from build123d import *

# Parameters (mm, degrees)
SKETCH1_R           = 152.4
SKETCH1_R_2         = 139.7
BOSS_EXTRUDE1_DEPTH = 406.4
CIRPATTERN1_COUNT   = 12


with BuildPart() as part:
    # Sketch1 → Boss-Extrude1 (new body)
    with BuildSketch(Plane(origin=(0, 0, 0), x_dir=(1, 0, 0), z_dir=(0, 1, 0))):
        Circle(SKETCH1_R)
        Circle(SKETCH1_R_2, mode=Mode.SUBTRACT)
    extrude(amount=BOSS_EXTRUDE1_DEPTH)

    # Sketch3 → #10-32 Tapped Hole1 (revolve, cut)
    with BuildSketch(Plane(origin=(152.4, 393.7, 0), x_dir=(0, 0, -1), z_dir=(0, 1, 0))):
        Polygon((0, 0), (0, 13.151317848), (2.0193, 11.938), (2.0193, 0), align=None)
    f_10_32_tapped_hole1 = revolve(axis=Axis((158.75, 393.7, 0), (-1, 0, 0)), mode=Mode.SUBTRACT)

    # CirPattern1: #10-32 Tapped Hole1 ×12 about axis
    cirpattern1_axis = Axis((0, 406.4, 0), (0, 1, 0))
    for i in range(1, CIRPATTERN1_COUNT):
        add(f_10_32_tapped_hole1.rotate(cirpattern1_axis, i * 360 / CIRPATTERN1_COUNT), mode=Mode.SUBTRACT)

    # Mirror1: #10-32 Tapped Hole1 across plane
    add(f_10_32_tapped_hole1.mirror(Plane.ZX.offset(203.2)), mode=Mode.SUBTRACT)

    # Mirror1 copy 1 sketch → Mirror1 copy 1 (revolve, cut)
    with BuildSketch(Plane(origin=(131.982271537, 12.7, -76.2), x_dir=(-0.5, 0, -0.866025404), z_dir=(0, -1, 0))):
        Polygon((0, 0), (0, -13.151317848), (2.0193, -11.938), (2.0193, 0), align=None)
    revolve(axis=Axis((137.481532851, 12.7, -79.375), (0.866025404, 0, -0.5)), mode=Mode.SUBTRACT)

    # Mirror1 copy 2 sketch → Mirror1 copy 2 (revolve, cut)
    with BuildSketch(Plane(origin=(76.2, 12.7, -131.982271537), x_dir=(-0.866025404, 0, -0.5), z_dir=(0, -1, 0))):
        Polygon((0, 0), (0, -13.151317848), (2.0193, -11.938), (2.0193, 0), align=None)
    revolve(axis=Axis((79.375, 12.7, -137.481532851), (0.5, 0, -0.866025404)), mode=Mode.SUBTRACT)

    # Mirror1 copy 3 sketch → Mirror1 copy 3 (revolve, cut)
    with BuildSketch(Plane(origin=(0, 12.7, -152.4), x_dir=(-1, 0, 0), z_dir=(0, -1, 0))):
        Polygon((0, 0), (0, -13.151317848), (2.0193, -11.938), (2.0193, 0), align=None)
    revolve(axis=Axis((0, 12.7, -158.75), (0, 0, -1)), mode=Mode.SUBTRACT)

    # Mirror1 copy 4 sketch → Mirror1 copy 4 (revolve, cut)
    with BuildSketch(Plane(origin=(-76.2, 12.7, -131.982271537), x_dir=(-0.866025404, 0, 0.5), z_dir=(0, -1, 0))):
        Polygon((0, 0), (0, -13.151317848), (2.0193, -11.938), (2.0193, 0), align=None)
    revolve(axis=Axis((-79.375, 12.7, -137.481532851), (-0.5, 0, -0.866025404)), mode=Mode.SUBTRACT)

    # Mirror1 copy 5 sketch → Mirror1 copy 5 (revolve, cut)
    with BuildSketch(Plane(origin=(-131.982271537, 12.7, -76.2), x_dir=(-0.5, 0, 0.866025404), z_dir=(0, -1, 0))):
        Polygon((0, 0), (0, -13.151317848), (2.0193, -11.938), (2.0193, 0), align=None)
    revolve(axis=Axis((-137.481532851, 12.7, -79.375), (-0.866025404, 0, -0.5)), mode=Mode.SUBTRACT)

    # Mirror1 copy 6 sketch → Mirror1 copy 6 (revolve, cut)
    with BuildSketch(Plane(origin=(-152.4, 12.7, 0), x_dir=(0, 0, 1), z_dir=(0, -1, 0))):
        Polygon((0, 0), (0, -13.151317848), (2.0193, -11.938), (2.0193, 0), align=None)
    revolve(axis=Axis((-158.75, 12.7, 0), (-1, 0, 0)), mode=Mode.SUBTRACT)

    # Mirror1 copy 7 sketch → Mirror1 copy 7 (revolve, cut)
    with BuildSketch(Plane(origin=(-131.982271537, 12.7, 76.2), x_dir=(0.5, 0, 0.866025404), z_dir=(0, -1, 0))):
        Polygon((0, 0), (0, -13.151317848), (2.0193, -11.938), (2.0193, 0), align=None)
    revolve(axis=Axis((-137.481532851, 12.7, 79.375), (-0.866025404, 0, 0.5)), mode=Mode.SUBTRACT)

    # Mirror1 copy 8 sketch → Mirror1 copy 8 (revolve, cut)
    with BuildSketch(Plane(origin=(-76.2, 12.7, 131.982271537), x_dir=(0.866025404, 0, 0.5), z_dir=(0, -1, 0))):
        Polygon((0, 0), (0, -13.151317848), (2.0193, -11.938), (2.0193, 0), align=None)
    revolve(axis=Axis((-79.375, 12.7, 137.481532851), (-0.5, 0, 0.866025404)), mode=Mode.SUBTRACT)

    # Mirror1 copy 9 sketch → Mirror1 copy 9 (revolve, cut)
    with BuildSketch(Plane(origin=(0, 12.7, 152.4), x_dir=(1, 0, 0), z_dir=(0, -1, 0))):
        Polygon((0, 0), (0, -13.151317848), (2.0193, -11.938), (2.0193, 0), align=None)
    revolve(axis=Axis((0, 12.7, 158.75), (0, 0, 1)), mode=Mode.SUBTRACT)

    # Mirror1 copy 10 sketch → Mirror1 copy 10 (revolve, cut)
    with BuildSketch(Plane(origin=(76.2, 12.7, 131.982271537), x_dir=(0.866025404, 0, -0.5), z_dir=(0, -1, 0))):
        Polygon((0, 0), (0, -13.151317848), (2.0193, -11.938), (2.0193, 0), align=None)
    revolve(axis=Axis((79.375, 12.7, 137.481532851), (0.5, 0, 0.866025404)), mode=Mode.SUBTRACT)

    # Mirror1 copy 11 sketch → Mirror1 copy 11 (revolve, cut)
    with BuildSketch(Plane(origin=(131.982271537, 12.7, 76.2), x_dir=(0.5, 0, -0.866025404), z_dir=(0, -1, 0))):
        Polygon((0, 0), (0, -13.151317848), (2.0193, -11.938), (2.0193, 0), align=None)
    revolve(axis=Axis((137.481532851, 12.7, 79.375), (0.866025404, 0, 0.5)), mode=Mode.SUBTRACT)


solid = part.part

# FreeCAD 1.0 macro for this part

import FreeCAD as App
import Part
import Sketcher

V = App.Vector
Q = App.Units.Quantity


def add_polygon(sketch, points):
    """Adds a closed chain of lines whose ends are joined by coincident constraints."""
    first, n = sketch.GeometryCount, len(points)
    for a, b in zip(points, points[1:] + points[:1]):
        sketch.addGeometry(Part.LineSegment(App.Vector(*a, 0), App.Vector(*b, 0)), False)
    for i in range(n):
        sketch.addConstraint(Sketcher.Constraint("Coincident", first + i, 2, first + (i + 1) % n, 1))

doc = App.newDocument("Part")
body = doc.addObject("PartDesign::Body", "Body")

sketch1 = body.newObject("Sketcher::SketchObject", "Sketch")
sketch1.AttachmentSupport = (doc.getObject("XZ_Plane"), [""])
sketch1.MapMode = "FlatFace"
sketch1.addGeometry(Part.Circle(V(0, 0, 0), V(0, 0, 1), 152), False)
sketch1.addGeometry(Part.Circle(V(0, 0, 0), V(0, 0, 1), 140), False)
sketch1.addConstraint(Sketcher.Constraint("Coincident", 0, 3, -1, 1))
sketch1.addConstraint(Sketcher.Constraint("Coincident", 1, 3, -1, 1))
sketch1.addConstraint(Sketcher.Constraint("Diameter", 0, Q("12 in")))
sketch1.addConstraint(Sketcher.Constraint("Diameter", 1, Q("11 in")))
pad1 = body.newObject("PartDesign::Pad", "Pad")
pad1.Profile = sketch1
pad1.Length = Q("16 in")
pad1.Reversed = True

sketch2 = body.newObject("Sketcher::SketchObject", "Sketch001")
sketch2.AttachmentSupport = (doc.getObject("XZ_Plane"), [""])
sketch2.MapMode = "FlatFace"
sketch2.AttachmentOffset = App.Placement(V(0, 0, -15.5 * 25.4), App.Rotation())
add_polygon(sketch2, [(139.2, 0), (152.4, 0), (152.4, -2), (140.5, -2)])
sketch2.addConstraint(Sketcher.Constraint("Horizontal", 0))
sketch2.addConstraint(Sketcher.Constraint("Vertical", 1))
sketch2.addConstraint(Sketcher.Constraint("Horizontal", 2))
sketch2.addConstraint(Sketcher.Constraint("PointOnObject", 0, 2, -1))
sketch2.addConstraint(Sketcher.Constraint("DistanceX", -1, 1, 0, 2, Q("6 in")))
sketch2.addConstraint(Sketcher.Constraint("Angle", 3, Q("121 deg")))
sketch2.addConstraint(Sketcher.Constraint("DistanceX", 2, 2, 2, 1, Q("0.47 in")))
sketch2.addConstraint(Sketcher.Constraint("DistanceY", 1, 2, 1, 1, Q("0.0795 in")))
groove = body.newObject("PartDesign::Groove", "Groove")
groove.Profile = sketch2
groove.ReferenceAxis = (sketch2, ["H_Axis"])
groove.Angle = 360
doc.recompute()

polarpattern = body.newObject("PartDesign::PolarPattern", "PolarPattern")
polarpattern.Originals = [groove]
polarpattern.Axis = (doc.getObject("Y_Axis"), [""])
polarpattern.Angle = 360
polarpattern.Occurrences = 12
body.Tip = polarpattern
doc.recompute()

datumplane = body.newObject("PartDesign::Plane", "DatumPlane")
datumplane.AttachmentSupport = (doc.getObject("XZ_Plane"), [""])
datumplane.MapMode = "FlatFace"
datumplane.AttachmentOffset = App.Placement(V(0, 0, -8 * 25.4), App.Rotation())
mirrored = body.newObject("PartDesign::Mirrored", "Mirrored")
mirrored.Originals = [groove]
mirrored.MirrorPlane = (datumplane, [""])
body.Tip = mirrored

sketch3 = body.newObject("Sketcher::SketchObject", "Sketch002")
sketch3.AttachmentSupport = (doc.getObject("XZ_Plane"), [""])
sketch3.MapMode = "FlatFace"
sketch3.AttachmentOffset = App.Placement(V(0, 0, -0.5 * 25.4), App.Rotation())
add_polygon(sketch3, [(132, -76.2), (120.6, -69.6), (120.6, -72), (131, -77.9)])
sketch3.addGeometry(Part.LineSegment(V(120.6, -69.6, 0), V(132, -76.2, 0)), True)
sketch3.addConstraint(Sketcher.Constraint("Coincident", 4, 1, 0, 2))
sketch3.addConstraint(Sketcher.Constraint("Coincident", 4, 2, 3, 2))
sketch3.addConstraint(Sketcher.Constraint("Parallel", 0, 2))
sketch3.addConstraint(Sketcher.Constraint("Perpendicular", 2, 3))
sketch3.addConstraint(Sketcher.Constraint("DistanceY", 3, 2, -1, 1, Q("3 in")))
sketch3.addConstraint(Sketcher.Constraint("Angle", 0, Q("150 deg")))
sketch3.addConstraint(Sketcher.Constraint("Angle", 1, Q("-89 deg")))
sketch3.addConstraint(Sketcher.Constraint("Distance", 2, Q("0.47 in")))
sketch3.addConstraint(Sketcher.Constraint("Distance", 3, Q("0.0795 in")))
sketch3.addConstraint(Sketcher.Constraint("DistanceX", -1, 1, 1, 2, 120.63401))
groove2 = body.newObject("PartDesign::Groove", "Groove001")
groove2.Profile = sketch3
groove2.ReferenceAxis = (sketch3, ["Axis0"])
groove2.Angle = 360

sketch4 = body.newObject("Sketcher::SketchObject", "Sketch003")
sketch4.AttachmentSupport = (doc.getObject("XZ_Plane"), [""])
sketch4.MapMode = "FlatFace"
sketch4.AttachmentOffset = App.Placement(V(0, 0, -0.5 * 25.4), App.Rotation())
add_polygon(sketch4, [(76.2, -132), (69.6, -120.6), (68.5, -122.7), (74.5, -133)])
sketch4.addGeometry(Part.LineSegment(V(69.6, -120.6, 0), V(76.2, -132, 0)), True)
sketch4.addConstraint(Sketcher.Constraint("Coincident", 4, 1, 0, 2))
sketch4.addConstraint(Sketcher.Constraint("Coincident", 4, 2, 3, 2))
sketch4.addConstraint(Sketcher.Constraint("Parallel", 0, 2))
sketch4.addConstraint(Sketcher.Constraint("Perpendicular", 2, 3))
sketch4.addConstraint(Sketcher.Constraint("DistanceX", -1, 1, 3, 2, Q("3 in")))
sketch4.addConstraint(Sketcher.Constraint("Angle", 0, Q("120 deg")))
sketch4.addConstraint(Sketcher.Constraint("Angle", 1, Q("-119 deg")))
sketch4.addConstraint(Sketcher.Constraint("Distance", 2, Q("0.47 in")))
sketch4.addConstraint(Sketcher.Constraint("Distance", 3, Q("0.0795 in")))
sketch4.addConstraint(Sketcher.Constraint("DistanceY", 1, 2, -1, 1, 122.65331))
groove3 = body.newObject("PartDesign::Groove", "Groove002")
groove3.Profile = sketch4
groove3.ReferenceAxis = (sketch4, ["Axis0"])
groove3.Angle = 360

sketch5 = body.newObject("Sketcher::SketchObject", "Sketch004")
sketch5.AttachmentSupport = (doc.getObject("XZ_Plane"), [""])
sketch5.MapMode = "FlatFace"
sketch5.AttachmentOffset = App.Placement(V(0, 0, -0.5 * 25.4), App.Rotation())
add_polygon(sketch5, [(0, -152.4), (0, -139.2), (-2, -140.5), (-2, -152.4)])
sketch5.addConstraint(Sketcher.Constraint("Vertical", 0))
sketch5.addConstraint(Sketcher.Constraint("Vertical", 2))
sketch5.addConstraint(Sketcher.Constraint("Horizontal", 3))
sketch5.addConstraint(Sketcher.Constraint("PointOnObject", 0, 2, -2))
sketch5.addConstraint(Sketcher.Constraint("DistanceY", 2, 2, -1, 1, Q("6 in")))
sketch5.addConstraint(Sketcher.Constraint("Angle", 1, Q("-149 deg")))
sketch5.addConstraint(Sketcher.Constraint("DistanceY", 2, 2, 2, 1, Q("0.47 in")))
sketch5.addConstraint(Sketcher.Constraint("DistanceX", 3, 1, 3, 2, Q("0.0795 in")))
groove4 = body.newObject("PartDesign::Groove", "Groove003")
groove4.Profile = sketch5
groove4.ReferenceAxis = (sketch5, ["V_Axis"])
groove4.Angle = 360

sketch6 = body.newObject("Sketcher::SketchObject", "Sketch005")
sketch6.AttachmentSupport = (doc.getObject("XZ_Plane"), [""])
sketch6.MapMode = "FlatFace"
sketch6.AttachmentOffset = App.Placement(V(0, 0, -0.5 * 25.4), App.Rotation())
add_polygon(sketch6, [(-76.2, -132), (-69.6, -120.6), (-72, -120.6), (-77.9, -131)])
sketch6.addGeometry(Part.LineSegment(V(-69.6, -120.6, 0), V(-76.2, -132, 0)), True)
sketch6.addConstraint(Sketcher.Constraint("Coincident", 4, 1, 0, 2))
sketch6.addConstraint(Sketcher.Constraint("Coincident", 4, 2, 3, 2))
sketch6.addConstraint(Sketcher.Constraint("Parallel", 0, 2))
sketch6.addConstraint(Sketcher.Constraint("Perpendicular", 2, 3))
sketch6.addConstraint(Sketcher.Constraint("DistanceX", 3, 2, -1, 1, Q("3 in")))
sketch6.addConstraint(Sketcher.Constraint("Angle", 0, Q("60 deg")))
sketch6.addConstraint(Sketcher.Constraint("Angle", 1, Q("-179 deg")))
sketch6.addConstraint(Sketcher.Constraint("Distance", 2, Q("0.47 in")))
sketch6.addConstraint(Sketcher.Constraint("Distance", 3, Q("0.0795 in")))
sketch6.addConstraint(Sketcher.Constraint("DistanceY", 1, 2, -1, 1, 120.63401))
groove5 = body.newObject("PartDesign::Groove", "Groove004")
groove5.Profile = sketch6
groove5.ReferenceAxis = (sketch6, ["Axis0"])
groove5.Angle = 360

sketch7 = body.newObject("Sketcher::SketchObject", "Sketch006")
sketch7.AttachmentSupport = (doc.getObject("XZ_Plane"), [""])
sketch7.MapMode = "FlatFace"
sketch7.AttachmentOffset = App.Placement(V(0, 0, -0.5 * 25.4), App.Rotation())
add_polygon(sketch7, [(-132, -76.2), (-120.6, -69.6), (-122.7, -68.5), (-133, -74.5)])
sketch7.addGeometry(Part.LineSegment(V(-120.6, -69.6, 0), V(-132, -76.2, 0)), True)
sketch7.addConstraint(Sketcher.Constraint("Coincident", 4, 1, 0, 2))
sketch7.addConstraint(Sketcher.Constraint("Coincident", 4, 2, 3, 2))
sketch7.addConstraint(Sketcher.Constraint("Parallel", 0, 2))
sketch7.addConstraint(Sketcher.Constraint("Perpendicular", 2, 3))
sketch7.addConstraint(Sketcher.Constraint("DistanceY", 3, 2, -1, 1, Q("3 in")))
sketch7.addConstraint(Sketcher.Constraint("Angle", 0, Q("30 deg")))
sketch7.addConstraint(Sketcher.Constraint("Angle", 1, Q("151 deg")))
sketch7.addConstraint(Sketcher.Constraint("Distance", 2, Q("0.47 in")))
sketch7.addConstraint(Sketcher.Constraint("Distance", 3, Q("0.0795 in")))
sketch7.addConstraint(Sketcher.Constraint("DistanceX", 1, 2, -1, 1, 122.65331))
groove6 = body.newObject("PartDesign::Groove", "Groove005")
groove6.Profile = sketch7
groove6.ReferenceAxis = (sketch7, ["Axis0"])
groove6.Angle = 360

sketch8 = body.newObject("Sketcher::SketchObject", "Sketch007")
sketch8.AttachmentSupport = (doc.getObject("XZ_Plane"), [""])
sketch8.MapMode = "FlatFace"
sketch8.AttachmentOffset = App.Placement(V(0, 0, -0.5 * 25.4), App.Rotation())
add_polygon(sketch8, [(-152.4, 0), (-139.2, 0), (-140.5, 2), (-152.4, 2)])
sketch8.addConstraint(Sketcher.Constraint("Horizontal", 0))
sketch8.addConstraint(Sketcher.Constraint("Horizontal", 2))
sketch8.addConstraint(Sketcher.Constraint("Vertical", 3))
sketch8.addConstraint(Sketcher.Constraint("PointOnObject", 0, 2, -1))
sketch8.addConstraint(Sketcher.Constraint("DistanceX", 2, 2, -1, 1, Q("6 in")))
sketch8.addConstraint(Sketcher.Constraint("Angle", 1, Q("121 deg")))
sketch8.addConstraint(Sketcher.Constraint("DistanceX", 2, 2, 2, 1, Q("0.47 in")))
sketch8.addConstraint(Sketcher.Constraint("DistanceY", 3, 2, 3, 1, Q("0.0795 in")))
groove7 = body.newObject("PartDesign::Groove", "Groove006")
groove7.Profile = sketch8
groove7.ReferenceAxis = (sketch8, ["H_Axis"])
groove7.Angle = 360

sketch9 = body.newObject("Sketcher::SketchObject", "Sketch008")
sketch9.AttachmentSupport = (doc.getObject("XZ_Plane"), [""])
sketch9.MapMode = "FlatFace"
sketch9.AttachmentOffset = App.Placement(V(0, 0, -0.5 * 25.4), App.Rotation())
add_polygon(sketch9, [(-132, 76.2), (-120.6, 69.6), (-120.6, 72), (-131, 77.9)])
sketch9.addGeometry(Part.LineSegment(V(-120.6, 69.6, 0), V(-132, 76.2, 0)), True)
sketch9.addConstraint(Sketcher.Constraint("Coincident", 4, 1, 0, 2))
sketch9.addConstraint(Sketcher.Constraint("Coincident", 4, 2, 3, 2))
sketch9.addConstraint(Sketcher.Constraint("Parallel", 0, 2))
sketch9.addConstraint(Sketcher.Constraint("Perpendicular", 2, 3))
sketch9.addConstraint(Sketcher.Constraint("DistanceY", -1, 1, 3, 2, Q("3 in")))
sketch9.addConstraint(Sketcher.Constraint("Angle", 0, Q("-30 deg")))
sketch9.addConstraint(Sketcher.Constraint("Angle", 1, Q("91 deg")))
sketch9.addConstraint(Sketcher.Constraint("Distance", 2, Q("0.47 in")))
sketch9.addConstraint(Sketcher.Constraint("Distance", 3, Q("0.0795 in")))
sketch9.addConstraint(Sketcher.Constraint("DistanceX", 1, 2, -1, 1, 120.63401))
groove8 = body.newObject("PartDesign::Groove", "Groove007")
groove8.Profile = sketch9
groove8.ReferenceAxis = (sketch9, ["Axis0"])
groove8.Angle = 360

sketch10 = body.newObject("Sketcher::SketchObject", "Sketch009")
sketch10.AttachmentSupport = (doc.getObject("XZ_Plane"), [""])
sketch10.MapMode = "FlatFace"
sketch10.AttachmentOffset = App.Placement(V(0, 0, -0.5 * 25.4), App.Rotation())
add_polygon(sketch10, [(-76.2, 132), (-69.6, 120.6), (-68.5, 122.7), (-74.5, 133)])
sketch10.addGeometry(Part.LineSegment(V(-69.6, 120.6, 0), V(-76.2, 132, 0)), True)
sketch10.addConstraint(Sketcher.Constraint("Coincident", 4, 1, 0, 2))
sketch10.addConstraint(Sketcher.Constraint("Coincident", 4, 2, 3, 2))
sketch10.addConstraint(Sketcher.Constraint("Parallel", 0, 2))
sketch10.addConstraint(Sketcher.Constraint("Perpendicular", 2, 3))
sketch10.addConstraint(Sketcher.Constraint("DistanceX", 3, 2, -1, 1, Q("3 in")))
sketch10.addConstraint(Sketcher.Constraint("Angle", 0, Q("-60 deg")))
sketch10.addConstraint(Sketcher.Constraint("Angle", 1, Q("61 deg")))
sketch10.addConstraint(Sketcher.Constraint("Distance", 2, Q("0.47 in")))
sketch10.addConstraint(Sketcher.Constraint("Distance", 3, Q("0.0795 in")))
sketch10.addConstraint(Sketcher.Constraint("DistanceY", -1, 1, 1, 2, 122.65331))
groove9 = body.newObject("PartDesign::Groove", "Groove008")
groove9.Profile = sketch10
groove9.ReferenceAxis = (sketch10, ["Axis0"])
groove9.Angle = 360

sketch11 = body.newObject("Sketcher::SketchObject", "Sketch010")
sketch11.AttachmentSupport = (doc.getObject("XZ_Plane"), [""])
sketch11.MapMode = "FlatFace"
sketch11.AttachmentOffset = App.Placement(V(0, 0, -0.5 * 25.4), App.Rotation())
add_polygon(sketch11, [(0, 152.4), (0, 139.2), (2, 140.5), (2, 152.4)])
sketch11.addConstraint(Sketcher.Constraint("Vertical", 0))
sketch11.addConstraint(Sketcher.Constraint("Vertical", 2))
sketch11.addConstraint(Sketcher.Constraint("Horizontal", 3))
sketch11.addConstraint(Sketcher.Constraint("PointOnObject", 0, 2, -2))
sketch11.addConstraint(Sketcher.Constraint("DistanceY", -1, 1, 2, 2, Q("6 in")))
sketch11.addConstraint(Sketcher.Constraint("Angle", 1, Q("31 deg")))
sketch11.addConstraint(Sketcher.Constraint("DistanceY", 2, 1, 2, 2, Q("0.47 in")))
sketch11.addConstraint(Sketcher.Constraint("DistanceX", 3, 2, 3, 1, Q("0.0795 in")))
groove10 = body.newObject("PartDesign::Groove", "Groove009")
groove10.Profile = sketch11
groove10.ReferenceAxis = (sketch11, ["V_Axis"])
groove10.Angle = 360

sketch12 = body.newObject("Sketcher::SketchObject", "Sketch011")
sketch12.AttachmentSupport = (doc.getObject("XZ_Plane"), [""])
sketch12.MapMode = "FlatFace"
sketch12.AttachmentOffset = App.Placement(V(0, 0, -0.5 * 25.4), App.Rotation())
add_polygon(sketch12, [(76.2, 132), (69.6, 120.6), (72, 120.6), (77.9, 131)])
sketch12.addGeometry(Part.LineSegment(V(69.6, 120.6, 0), V(76.2, 132, 0)), True)
sketch12.addConstraint(Sketcher.Constraint("Coincident", 4, 1, 0, 2))
sketch12.addConstraint(Sketcher.Constraint("Coincident", 4, 2, 3, 2))
sketch12.addConstraint(Sketcher.Constraint("Parallel", 0, 2))
sketch12.addConstraint(Sketcher.Constraint("Perpendicular", 2, 3))
sketch12.addConstraint(Sketcher.Constraint("DistanceX", -1, 1, 3, 2, Q("3 in")))
sketch12.addConstraint(Sketcher.Constraint("Angle", 0, Q("-120 deg")))
sketch12.addConstraint(Sketcher.Constraint("Angle", 1, Q("1 deg")))
sketch12.addConstraint(Sketcher.Constraint("Distance", 2, Q("0.47 in")))
sketch12.addConstraint(Sketcher.Constraint("Distance", 3, Q("0.0795 in")))
sketch12.addConstraint(Sketcher.Constraint("DistanceY", -1, 1, 1, 2, 120.63401))
groove11 = body.newObject("PartDesign::Groove", "Groove010")
groove11.Profile = sketch12
groove11.ReferenceAxis = (sketch12, ["Axis0"])
groove11.Angle = 360

sketch13 = body.newObject("Sketcher::SketchObject", "Sketch012")
sketch13.AttachmentSupport = (doc.getObject("XZ_Plane"), [""])
sketch13.MapMode = "FlatFace"
sketch13.AttachmentOffset = App.Placement(V(0, 0, -0.5 * 25.4), App.Rotation())
add_polygon(sketch13, [(132, 76.2), (120.6, 69.6), (122.7, 68.5), (133, 74.5)])
sketch13.addGeometry(Part.LineSegment(V(120.6, 69.6, 0), V(132, 76.2, 0)), True)
sketch13.addConstraint(Sketcher.Constraint("Coincident", 4, 1, 0, 2))
sketch13.addConstraint(Sketcher.Constraint("Coincident", 4, 2, 3, 2))
sketch13.addConstraint(Sketcher.Constraint("Parallel", 0, 2))
sketch13.addConstraint(Sketcher.Constraint("Perpendicular", 2, 3))
sketch13.addConstraint(Sketcher.Constraint("DistanceY", -1, 1, 3, 2, Q("3 in")))
sketch13.addConstraint(Sketcher.Constraint("Angle", 0, Q("-150 deg")))
sketch13.addConstraint(Sketcher.Constraint("Angle", 1, Q("-29 deg")))
sketch13.addConstraint(Sketcher.Constraint("Distance", 2, Q("0.47 in")))
sketch13.addConstraint(Sketcher.Constraint("Distance", 3, Q("0.0795 in")))
sketch13.addConstraint(Sketcher.Constraint("DistanceX", -1, 1, 1, 2, 122.65331))
groove12 = body.newObject("PartDesign::Groove", "Groove011")
groove12.Profile = sketch13
groove12.ReferenceAxis = (sketch13, ["Axis0"])
groove12.Angle = 360

doc.recompute()
